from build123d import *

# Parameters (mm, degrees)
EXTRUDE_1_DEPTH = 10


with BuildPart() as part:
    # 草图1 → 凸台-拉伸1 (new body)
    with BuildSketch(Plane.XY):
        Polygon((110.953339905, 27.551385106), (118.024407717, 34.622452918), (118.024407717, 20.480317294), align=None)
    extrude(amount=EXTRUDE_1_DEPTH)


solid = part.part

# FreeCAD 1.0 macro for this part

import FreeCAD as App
import Part
import Sketcher
Q = App.Units.Quantity


def add_polygon(sketch, points):
    """Adds a closed chain of lines whose ends are joined by coincident constraints."""
    first, n = sketch.GeometryCount, len(points)
    for a, b in zip(points, points[1:] + points[:1]):
        sketch.addGeometry(Part.LineSegment(App.Vector(*a, 0), App.Vector(*b, 0)), False)
    for i in range(n):
        sketch.addConstraint(Sketcher.Constraint("Coincident", first + i, 2, first + (i + 1) % n, 1))

doc = App.newDocument("Part")
body = doc.addObject("PartDesign::Body", "Body")

# Sketch on XY plane
sketch1 = doc.addObject("Sketcher::SketchObject", "Sketch")
body.addObject(sketch1)
sketch1.AttachmentSupport = (doc.XY_Plane, [""])
sketch1.MapMode = "FlatFace"
add_polygon(sketch1, [(118.024408, 34.622453), (110.95334, 27.551385), (118.024408, 20.480317)])  # lines 0-2
sketch1.addConstraint([
    Sketcher.Constraint("Vertical", 2),
    Sketcher.Constraint("Perpendicular", 0, 1),
    Sketcher.Constraint("Equal", 0, 1),
    Sketcher.Constraint("Distance", 0, Q("10 mm")),
    Sketcher.Constraint("DistanceX", -1, 1, 0, 2, Q("110.95334 mm")),
    Sketcher.Constraint("DistanceY", -1, 1, 0, 2, Q("27.551385 mm")),
])
pad1 = doc.addObject("PartDesign::Pad", "Pad")
body.addObject(pad1)
pad1.Profile = sketch1
pad1.Length = 10

doc.recompute()
